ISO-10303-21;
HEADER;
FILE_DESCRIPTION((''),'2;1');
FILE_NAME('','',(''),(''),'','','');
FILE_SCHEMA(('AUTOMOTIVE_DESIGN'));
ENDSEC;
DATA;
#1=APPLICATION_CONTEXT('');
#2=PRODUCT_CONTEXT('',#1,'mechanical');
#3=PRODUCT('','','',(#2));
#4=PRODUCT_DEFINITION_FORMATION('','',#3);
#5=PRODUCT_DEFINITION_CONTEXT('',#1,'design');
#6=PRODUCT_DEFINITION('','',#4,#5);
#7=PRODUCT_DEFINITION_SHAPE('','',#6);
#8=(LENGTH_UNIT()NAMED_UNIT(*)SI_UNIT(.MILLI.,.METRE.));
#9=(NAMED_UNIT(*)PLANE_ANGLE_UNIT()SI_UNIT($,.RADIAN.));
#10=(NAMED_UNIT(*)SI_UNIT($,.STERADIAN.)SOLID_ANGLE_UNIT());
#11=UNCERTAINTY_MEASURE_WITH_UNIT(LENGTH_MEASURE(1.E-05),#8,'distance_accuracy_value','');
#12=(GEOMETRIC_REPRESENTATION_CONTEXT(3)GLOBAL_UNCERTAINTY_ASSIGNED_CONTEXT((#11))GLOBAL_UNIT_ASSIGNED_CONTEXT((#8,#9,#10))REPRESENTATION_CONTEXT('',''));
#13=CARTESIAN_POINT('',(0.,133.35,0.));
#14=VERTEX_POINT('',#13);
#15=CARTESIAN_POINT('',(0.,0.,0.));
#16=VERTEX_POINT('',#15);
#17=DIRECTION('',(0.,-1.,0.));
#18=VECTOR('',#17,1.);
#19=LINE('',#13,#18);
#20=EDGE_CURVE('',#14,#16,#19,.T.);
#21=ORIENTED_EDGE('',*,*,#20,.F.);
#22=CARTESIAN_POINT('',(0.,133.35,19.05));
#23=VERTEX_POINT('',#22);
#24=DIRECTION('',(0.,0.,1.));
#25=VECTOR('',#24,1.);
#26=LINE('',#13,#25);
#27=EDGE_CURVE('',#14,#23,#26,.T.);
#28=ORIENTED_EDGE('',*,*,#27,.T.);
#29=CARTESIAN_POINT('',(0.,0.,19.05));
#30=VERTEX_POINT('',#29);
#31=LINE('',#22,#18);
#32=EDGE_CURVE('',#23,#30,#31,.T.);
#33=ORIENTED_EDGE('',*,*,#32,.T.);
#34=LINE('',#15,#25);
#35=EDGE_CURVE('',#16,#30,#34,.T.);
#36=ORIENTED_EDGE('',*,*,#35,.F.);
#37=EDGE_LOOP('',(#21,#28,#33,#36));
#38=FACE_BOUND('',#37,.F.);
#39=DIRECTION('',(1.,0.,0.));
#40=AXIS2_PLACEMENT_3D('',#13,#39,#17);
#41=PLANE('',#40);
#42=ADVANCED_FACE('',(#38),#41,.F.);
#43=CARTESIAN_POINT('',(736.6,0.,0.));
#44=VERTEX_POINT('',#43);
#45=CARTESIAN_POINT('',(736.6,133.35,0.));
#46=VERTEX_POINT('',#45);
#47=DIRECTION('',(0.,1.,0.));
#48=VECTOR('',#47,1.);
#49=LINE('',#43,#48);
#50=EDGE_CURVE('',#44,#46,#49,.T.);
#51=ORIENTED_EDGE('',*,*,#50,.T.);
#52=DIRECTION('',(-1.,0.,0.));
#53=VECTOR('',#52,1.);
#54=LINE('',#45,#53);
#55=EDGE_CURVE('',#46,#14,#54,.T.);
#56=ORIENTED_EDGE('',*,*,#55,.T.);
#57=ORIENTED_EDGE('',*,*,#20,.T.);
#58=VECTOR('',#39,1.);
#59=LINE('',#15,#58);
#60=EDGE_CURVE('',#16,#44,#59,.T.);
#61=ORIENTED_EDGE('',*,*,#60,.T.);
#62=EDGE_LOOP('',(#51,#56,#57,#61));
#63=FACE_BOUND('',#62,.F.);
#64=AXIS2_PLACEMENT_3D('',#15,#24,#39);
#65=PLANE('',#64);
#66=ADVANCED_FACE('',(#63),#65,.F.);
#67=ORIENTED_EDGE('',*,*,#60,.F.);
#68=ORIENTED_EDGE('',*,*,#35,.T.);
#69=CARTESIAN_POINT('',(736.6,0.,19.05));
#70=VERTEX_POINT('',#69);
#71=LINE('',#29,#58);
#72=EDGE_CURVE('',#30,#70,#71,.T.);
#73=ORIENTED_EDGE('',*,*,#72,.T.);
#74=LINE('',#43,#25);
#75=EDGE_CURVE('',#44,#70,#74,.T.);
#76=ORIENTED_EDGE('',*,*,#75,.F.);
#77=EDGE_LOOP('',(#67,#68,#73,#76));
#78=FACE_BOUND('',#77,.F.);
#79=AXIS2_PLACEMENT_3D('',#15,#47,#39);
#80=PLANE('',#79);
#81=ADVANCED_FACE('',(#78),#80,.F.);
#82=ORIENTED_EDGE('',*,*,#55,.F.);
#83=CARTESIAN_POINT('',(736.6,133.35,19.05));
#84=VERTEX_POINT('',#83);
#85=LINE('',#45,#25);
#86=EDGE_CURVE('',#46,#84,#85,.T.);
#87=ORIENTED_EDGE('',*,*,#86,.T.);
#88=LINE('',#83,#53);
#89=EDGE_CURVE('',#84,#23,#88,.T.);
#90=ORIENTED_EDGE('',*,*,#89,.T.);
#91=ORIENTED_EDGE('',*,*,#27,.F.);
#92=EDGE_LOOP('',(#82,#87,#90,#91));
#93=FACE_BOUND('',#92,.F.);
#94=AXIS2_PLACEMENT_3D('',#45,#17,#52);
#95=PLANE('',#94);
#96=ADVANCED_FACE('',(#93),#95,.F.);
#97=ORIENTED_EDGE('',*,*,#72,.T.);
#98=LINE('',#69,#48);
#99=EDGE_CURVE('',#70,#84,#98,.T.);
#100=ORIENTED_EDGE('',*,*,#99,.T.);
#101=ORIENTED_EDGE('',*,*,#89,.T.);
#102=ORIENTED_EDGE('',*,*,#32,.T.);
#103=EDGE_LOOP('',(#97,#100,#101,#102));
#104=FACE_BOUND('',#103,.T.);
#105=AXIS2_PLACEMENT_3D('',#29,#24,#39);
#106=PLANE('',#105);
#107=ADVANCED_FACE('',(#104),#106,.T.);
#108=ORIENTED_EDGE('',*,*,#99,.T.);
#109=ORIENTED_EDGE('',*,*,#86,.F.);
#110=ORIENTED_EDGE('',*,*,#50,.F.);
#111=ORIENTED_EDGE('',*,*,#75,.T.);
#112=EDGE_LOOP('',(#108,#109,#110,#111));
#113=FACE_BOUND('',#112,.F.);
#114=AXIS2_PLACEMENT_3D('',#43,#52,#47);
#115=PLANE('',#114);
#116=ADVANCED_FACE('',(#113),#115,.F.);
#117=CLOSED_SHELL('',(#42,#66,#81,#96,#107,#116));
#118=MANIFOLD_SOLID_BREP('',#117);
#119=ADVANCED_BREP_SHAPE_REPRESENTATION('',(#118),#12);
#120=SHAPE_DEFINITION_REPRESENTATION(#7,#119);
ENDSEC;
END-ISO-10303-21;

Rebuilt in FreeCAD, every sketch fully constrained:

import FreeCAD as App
import Part
import Sketcher

V = App.Vector
Q = App.Units.Quantity


def add_polygon(sketch, points):
    """Adds a closed chain of lines whose ends are joined by coincident constraints."""
    first, n = sketch.GeometryCount, len(points)
    for a, b in zip(points, points[1:] + points[:1]):
        sketch.addGeometry(Part.LineSegment(App.Vector(*a, 0), App.Vector(*b, 0)), False)
    for i in range(n):
        sketch.addConstraint(Sketcher.Constraint("Coincident", first + i, 2, first + (i + 1) % n, 1))

doc = App.newDocument("Part")
body = doc.addObject("PartDesign::Body", "Body")

sketch1 = doc.addObject("Sketcher::SketchObject", "Sketch")
body.addObject(sketch1)
sketch1.AttachmentSupport = (doc.XY_Plane, [""])
sketch1.MapMode = "FlatFace"
add_polygon(sketch1, [(0, 133), (0, 0), (737, 0), (737, 133)])
sketch1.addConstraint([
    Sketcher.Constraint("Vertical", 0),
    Sketcher.Constraint("Horizontal", 1),
    Sketcher.Constraint("Vertical", 2),
    Sketcher.Constraint("Horizontal", 3),
    Sketcher.Constraint("Coincident", 0, 2, -1, 1),
    Sketcher.Constraint("DistanceX", 1, 1, 1, 2, Q("29 in")),
    Sketcher.Constraint("DistanceY", 0, 2, 0, 1, Q("5.25 in")),
])
pad1 = doc.addObject("PartDesign::Pad", "Pad")
body.addObject(pad1)
pad1.Profile = sketch1
pad1.Length = Q("0.75 in")

doc.recompute()
